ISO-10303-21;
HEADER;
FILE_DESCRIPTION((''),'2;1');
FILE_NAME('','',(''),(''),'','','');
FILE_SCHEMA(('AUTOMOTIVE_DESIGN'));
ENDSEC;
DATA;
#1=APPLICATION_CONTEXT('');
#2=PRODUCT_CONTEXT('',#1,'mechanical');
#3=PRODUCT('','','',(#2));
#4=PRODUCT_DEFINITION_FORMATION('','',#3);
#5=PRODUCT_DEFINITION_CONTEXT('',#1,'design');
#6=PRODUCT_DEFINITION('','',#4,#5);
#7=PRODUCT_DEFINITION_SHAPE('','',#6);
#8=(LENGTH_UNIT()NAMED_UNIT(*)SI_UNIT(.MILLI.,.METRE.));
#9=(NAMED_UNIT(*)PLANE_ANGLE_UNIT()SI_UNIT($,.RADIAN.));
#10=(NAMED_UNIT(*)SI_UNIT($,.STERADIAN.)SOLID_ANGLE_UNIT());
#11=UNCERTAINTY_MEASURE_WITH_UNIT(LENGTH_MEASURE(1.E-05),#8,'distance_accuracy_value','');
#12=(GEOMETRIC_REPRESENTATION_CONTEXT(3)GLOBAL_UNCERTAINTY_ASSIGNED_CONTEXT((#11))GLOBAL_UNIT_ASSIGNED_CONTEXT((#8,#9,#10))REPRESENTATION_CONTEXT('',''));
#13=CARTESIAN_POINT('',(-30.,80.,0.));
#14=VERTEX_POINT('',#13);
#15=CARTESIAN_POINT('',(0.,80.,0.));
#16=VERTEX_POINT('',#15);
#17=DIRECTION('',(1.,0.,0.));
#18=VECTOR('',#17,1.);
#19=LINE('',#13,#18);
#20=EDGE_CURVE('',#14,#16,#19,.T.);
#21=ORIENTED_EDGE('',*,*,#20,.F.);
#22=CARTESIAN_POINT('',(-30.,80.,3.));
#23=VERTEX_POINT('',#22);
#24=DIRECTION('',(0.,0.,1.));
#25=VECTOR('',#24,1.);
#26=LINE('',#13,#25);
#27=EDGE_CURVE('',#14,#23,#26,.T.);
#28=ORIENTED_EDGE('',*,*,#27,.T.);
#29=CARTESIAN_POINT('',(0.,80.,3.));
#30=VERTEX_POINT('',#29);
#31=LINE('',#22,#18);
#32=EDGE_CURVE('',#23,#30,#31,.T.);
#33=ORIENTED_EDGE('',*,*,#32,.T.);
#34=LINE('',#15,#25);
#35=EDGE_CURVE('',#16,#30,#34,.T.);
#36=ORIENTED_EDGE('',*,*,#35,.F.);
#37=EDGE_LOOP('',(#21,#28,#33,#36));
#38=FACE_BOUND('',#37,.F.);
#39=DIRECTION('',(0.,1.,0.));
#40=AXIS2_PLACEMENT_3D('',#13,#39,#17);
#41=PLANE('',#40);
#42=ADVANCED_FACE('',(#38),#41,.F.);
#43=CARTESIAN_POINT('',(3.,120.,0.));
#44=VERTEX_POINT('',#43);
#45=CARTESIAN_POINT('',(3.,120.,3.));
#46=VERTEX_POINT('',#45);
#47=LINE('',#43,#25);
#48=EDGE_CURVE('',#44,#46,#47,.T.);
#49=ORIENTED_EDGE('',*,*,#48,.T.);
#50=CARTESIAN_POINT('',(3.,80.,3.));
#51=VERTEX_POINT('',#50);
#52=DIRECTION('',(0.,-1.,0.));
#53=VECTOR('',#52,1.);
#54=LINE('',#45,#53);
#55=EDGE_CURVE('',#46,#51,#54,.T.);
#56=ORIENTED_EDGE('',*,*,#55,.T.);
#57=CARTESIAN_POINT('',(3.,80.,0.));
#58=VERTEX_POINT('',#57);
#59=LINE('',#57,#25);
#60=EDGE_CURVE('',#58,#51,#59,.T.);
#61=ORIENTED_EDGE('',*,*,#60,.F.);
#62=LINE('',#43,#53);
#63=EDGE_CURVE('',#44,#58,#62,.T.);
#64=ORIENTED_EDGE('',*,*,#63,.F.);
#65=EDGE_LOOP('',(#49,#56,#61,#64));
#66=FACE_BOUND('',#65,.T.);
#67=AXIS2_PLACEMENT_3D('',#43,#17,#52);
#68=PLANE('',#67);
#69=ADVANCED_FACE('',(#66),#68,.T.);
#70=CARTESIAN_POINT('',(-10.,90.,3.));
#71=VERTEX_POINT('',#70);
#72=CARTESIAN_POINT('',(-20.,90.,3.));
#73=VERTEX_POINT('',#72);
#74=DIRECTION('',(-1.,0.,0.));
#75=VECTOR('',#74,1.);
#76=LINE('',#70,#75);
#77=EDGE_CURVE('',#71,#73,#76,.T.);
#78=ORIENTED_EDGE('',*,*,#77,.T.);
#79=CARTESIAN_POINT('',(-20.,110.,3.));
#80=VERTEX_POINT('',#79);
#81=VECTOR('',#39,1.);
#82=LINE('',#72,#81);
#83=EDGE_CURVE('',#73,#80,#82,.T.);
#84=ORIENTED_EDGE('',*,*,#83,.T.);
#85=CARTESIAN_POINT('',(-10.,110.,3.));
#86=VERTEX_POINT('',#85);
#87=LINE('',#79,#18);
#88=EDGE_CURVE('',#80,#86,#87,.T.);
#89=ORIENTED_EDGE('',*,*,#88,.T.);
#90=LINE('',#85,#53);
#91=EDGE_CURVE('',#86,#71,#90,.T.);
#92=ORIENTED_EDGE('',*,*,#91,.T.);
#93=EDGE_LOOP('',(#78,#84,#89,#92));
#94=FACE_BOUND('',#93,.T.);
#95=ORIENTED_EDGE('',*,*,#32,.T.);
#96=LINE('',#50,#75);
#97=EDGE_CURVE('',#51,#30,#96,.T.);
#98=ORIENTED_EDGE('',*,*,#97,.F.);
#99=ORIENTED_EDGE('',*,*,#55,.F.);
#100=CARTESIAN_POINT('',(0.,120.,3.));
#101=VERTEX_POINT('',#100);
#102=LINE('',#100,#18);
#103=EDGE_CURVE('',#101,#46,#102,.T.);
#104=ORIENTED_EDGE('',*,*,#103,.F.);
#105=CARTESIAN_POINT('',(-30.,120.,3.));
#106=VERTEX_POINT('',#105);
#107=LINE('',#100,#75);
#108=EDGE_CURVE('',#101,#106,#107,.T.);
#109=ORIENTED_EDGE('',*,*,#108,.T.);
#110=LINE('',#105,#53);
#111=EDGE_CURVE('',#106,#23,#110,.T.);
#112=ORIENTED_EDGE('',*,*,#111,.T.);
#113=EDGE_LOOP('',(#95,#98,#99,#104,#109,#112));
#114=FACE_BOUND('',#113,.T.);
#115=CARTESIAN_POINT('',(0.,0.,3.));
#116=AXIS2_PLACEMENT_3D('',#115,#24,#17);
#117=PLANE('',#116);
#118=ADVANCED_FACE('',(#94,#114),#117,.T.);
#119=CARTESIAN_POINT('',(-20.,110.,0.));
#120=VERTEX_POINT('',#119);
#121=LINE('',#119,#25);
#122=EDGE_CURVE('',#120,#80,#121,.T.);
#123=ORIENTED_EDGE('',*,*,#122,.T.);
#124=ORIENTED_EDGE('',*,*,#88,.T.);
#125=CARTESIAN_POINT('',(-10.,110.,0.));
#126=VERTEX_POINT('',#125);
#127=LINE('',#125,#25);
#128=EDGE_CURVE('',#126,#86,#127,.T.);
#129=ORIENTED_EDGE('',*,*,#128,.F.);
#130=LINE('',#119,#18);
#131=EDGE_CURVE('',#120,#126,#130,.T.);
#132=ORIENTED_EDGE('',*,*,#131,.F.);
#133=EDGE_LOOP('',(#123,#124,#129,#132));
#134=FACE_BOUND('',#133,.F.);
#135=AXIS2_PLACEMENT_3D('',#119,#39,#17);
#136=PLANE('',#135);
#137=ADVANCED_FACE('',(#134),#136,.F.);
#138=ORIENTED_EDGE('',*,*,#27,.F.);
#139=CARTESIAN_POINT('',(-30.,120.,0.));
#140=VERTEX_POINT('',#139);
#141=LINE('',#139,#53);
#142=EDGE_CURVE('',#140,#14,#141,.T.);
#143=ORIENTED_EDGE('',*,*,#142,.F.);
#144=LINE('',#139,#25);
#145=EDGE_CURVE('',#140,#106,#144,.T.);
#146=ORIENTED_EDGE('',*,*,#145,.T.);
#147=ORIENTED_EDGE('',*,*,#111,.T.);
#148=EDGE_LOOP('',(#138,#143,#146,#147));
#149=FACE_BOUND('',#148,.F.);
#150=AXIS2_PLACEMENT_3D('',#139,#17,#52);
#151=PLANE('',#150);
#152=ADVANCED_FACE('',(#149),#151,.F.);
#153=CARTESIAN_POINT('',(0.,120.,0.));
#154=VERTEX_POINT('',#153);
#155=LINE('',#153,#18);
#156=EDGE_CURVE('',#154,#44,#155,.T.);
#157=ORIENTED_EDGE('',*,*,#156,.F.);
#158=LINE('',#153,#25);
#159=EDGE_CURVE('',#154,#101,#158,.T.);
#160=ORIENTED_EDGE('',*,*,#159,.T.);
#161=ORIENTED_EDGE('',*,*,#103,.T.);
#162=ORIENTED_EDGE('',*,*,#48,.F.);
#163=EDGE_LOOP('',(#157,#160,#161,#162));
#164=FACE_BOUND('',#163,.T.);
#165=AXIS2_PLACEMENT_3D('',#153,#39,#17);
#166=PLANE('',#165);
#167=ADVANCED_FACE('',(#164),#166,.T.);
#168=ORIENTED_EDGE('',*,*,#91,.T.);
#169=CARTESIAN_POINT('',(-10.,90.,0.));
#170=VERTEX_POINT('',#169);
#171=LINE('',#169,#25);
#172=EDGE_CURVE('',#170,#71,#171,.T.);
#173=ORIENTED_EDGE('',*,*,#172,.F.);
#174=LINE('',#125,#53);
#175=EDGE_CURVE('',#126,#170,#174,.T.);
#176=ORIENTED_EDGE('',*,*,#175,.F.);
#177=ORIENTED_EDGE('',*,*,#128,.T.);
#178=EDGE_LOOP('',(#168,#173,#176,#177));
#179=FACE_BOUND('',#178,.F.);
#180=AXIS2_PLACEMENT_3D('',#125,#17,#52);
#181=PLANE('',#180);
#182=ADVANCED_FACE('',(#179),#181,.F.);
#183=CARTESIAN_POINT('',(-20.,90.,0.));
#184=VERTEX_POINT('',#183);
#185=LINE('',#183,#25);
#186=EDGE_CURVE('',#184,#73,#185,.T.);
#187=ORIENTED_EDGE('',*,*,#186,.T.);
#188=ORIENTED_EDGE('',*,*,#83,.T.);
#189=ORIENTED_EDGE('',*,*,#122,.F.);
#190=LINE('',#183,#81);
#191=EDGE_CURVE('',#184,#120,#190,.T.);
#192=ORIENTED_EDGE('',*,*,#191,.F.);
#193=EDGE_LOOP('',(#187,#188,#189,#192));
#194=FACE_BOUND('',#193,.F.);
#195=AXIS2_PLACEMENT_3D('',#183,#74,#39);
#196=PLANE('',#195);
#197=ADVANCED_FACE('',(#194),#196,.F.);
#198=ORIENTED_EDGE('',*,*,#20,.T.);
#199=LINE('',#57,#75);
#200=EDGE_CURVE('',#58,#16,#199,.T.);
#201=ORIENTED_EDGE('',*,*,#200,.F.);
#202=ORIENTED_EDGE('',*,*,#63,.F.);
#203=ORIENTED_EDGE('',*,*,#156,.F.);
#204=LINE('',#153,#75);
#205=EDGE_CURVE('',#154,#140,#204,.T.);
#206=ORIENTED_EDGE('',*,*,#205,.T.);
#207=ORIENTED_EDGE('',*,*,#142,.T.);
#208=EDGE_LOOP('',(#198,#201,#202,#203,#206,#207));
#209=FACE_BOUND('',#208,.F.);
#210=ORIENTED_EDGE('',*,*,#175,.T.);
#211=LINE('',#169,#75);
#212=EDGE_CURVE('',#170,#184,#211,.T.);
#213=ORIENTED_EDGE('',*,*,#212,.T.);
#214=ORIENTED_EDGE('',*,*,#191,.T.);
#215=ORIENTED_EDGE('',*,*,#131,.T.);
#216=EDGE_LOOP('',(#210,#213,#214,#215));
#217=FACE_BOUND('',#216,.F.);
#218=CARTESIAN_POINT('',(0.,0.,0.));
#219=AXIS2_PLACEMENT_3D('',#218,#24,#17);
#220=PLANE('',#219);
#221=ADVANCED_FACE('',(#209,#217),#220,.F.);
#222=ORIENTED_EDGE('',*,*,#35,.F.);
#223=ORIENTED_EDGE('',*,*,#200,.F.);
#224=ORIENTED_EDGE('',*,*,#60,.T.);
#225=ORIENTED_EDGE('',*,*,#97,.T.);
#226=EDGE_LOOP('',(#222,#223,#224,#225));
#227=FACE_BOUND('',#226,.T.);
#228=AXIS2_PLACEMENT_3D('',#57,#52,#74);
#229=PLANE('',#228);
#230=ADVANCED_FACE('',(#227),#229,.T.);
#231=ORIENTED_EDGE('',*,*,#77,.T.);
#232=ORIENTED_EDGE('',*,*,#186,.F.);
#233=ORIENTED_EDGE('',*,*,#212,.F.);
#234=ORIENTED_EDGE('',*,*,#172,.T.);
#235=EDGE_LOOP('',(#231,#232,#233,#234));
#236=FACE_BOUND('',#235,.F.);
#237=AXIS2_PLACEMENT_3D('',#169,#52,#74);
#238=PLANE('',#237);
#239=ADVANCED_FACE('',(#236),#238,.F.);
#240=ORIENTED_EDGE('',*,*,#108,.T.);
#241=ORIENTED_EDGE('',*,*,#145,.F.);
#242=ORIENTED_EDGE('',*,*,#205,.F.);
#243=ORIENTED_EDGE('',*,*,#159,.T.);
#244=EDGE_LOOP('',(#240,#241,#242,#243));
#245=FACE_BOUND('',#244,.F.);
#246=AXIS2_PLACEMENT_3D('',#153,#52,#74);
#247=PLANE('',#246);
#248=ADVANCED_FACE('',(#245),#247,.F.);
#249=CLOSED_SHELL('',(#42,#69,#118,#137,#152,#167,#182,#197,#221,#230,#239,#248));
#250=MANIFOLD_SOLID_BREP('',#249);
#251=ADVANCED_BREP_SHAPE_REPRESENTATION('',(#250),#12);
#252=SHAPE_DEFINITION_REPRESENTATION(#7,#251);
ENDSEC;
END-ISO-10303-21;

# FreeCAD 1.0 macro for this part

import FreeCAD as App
import Part
import Sketcher
Q = App.Units.Quantity


def add_polygon(sketch, points):
    """Adds a closed chain of lines whose ends are joined by coincident constraints."""
    first, n = sketch.GeometryCount, len(points)
    for a, b in zip(points, points[1:] + points[:1]):
        sketch.addGeometry(Part.LineSegment(App.Vector(*a, 0), App.Vector(*b, 0)), False)
    for i in range(n):
        sketch.addConstraint(Sketcher.Constraint("Coincident", first + i, 2, first + (i + 1) % n, 1))

doc = App.newDocument("Part")
body = doc.addObject("PartDesign::Body", "Body")

sketch1 = doc.addObject("Sketcher::SketchObject", "Sketch")
body.addObject(sketch1)
sketch1.AttachmentSupport = (doc.XY_Plane, [""])
sketch1.MapMode = "FlatFace"
add_polygon(sketch1, [(3, 120), (-30, 120), (-30, 80), (3, 80)])
add_polygon(sketch1, [(-20, 90), (-20, 110), (-10, 110), (-10, 90)])
sketch1.addConstraint([
    Sketcher.Constraint("Horizontal", 0),
    Sketcher.Constraint("Vertical", 1),
    Sketcher.Constraint("Horizontal", 2),
    Sketcher.Constraint("Vertical", 3),
    Sketcher.Constraint("Vertical", 4),
    Sketcher.Constraint("Horizontal", 5),
    Sketcher.Constraint("Vertical", 6),
    Sketcher.Constraint("Horizontal", 7),
    Sketcher.Constraint("DistanceX", 0, 2, 0, 1, Q("33 mm")),
    Sketcher.Constraint("DistanceX", 5, 1, 5, 2, Q("10 mm")),
    Sketcher.Constraint("DistanceY", 1, 2, 1, 1, Q("40 mm")),
    Sketcher.Constraint("DistanceY", 4, 1, 4, 2, Q("20 mm")),
    Sketcher.Constraint("DistanceX", 0, 2, -1, 1, Q("30 mm")),
    Sketcher.Constraint("DistanceY", -1, 1, 0, 2, Q("120 mm")),
    Sketcher.Constraint("DistanceX", 4, 2, -1, 1, Q("20 mm")),
    Sketcher.Constraint("DistanceY", -1, 1, 4, 2, Q("110 mm")),
])
pad1 = doc.addObject("PartDesign::Pad", "Pad")
body.addObject(pad1)
pad1.Profile = sketch1
pad1.Length = 3

doc.recompute()
